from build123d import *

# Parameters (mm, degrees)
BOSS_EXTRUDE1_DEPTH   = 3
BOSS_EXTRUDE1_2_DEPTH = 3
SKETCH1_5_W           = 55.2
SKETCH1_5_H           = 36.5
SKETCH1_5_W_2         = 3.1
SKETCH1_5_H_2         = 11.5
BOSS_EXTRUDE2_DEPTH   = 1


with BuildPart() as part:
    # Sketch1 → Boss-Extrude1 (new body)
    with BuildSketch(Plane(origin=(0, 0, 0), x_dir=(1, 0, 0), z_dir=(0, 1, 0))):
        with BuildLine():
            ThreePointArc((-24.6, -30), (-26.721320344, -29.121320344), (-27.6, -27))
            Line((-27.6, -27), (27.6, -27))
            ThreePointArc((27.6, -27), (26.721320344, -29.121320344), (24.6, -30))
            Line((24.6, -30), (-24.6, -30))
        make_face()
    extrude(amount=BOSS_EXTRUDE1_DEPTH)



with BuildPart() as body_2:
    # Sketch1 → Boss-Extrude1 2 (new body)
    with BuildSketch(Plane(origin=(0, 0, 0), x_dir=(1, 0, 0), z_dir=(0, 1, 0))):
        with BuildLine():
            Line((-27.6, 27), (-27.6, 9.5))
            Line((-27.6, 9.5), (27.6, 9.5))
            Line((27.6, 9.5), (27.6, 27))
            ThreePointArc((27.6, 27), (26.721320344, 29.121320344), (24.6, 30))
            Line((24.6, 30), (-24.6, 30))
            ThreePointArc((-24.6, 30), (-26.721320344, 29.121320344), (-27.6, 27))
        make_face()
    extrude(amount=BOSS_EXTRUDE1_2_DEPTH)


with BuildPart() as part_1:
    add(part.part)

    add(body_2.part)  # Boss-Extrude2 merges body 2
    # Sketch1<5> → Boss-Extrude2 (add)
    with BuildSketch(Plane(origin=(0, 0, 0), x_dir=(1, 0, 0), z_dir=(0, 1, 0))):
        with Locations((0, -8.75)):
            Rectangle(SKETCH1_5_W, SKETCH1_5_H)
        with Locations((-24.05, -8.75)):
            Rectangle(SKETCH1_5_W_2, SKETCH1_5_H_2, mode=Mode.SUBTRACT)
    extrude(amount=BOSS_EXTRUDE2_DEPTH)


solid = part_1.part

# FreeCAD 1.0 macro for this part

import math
import FreeCAD as App
import Part
import Sketcher
Q = App.Units.Quantity

doc = App.newDocument("Part")
body = doc.addObject("PartDesign::Body", "Body")

# Sketch on XZ plane
sketch1 = body.newObject("Sketcher::SketchObject", "Sketch")
sketch1.AttachmentSupport = (doc.getObject("XZ_Plane"), [""])
sketch1.MapMode = "FlatFace"
sketch1.addGeometry([
    Part.ArcOfCircle(Part.Circle(App.Vector(-24.6, 27, 0), App.Vector(0, 0, 1), 3), math.radians(90), math.radians(180)),
    Part.LineSegment(App.Vector(-24.6, 30, 0), App.Vector(24.6, 30, 0)),
    Part.ArcOfCircle(Part.Circle(App.Vector(24.6, 27, 0), App.Vector(0, 0, 1), 3), math.radians(0), math.radians(90)),
    Part.LineSegment(App.Vector(27.6, 27, 0), App.Vector(-27.6, 27, 0)),
], False)
sketch1.addConstraint([
    Sketcher.Constraint("Tangent", 0, 1, 1, 1),
    Sketcher.Constraint("Tangent", 1, 2, 2, 2),
    Sketcher.Constraint("Coincident", 2, 1, 3, 1),
    Sketcher.Constraint("Coincident", 3, 2, 0, 2),
    Sketcher.Constraint("Horizontal", 1),
    Sketcher.Constraint("Horizontal", 3),
    Sketcher.Constraint("Equal", 0, 2),
    Sketcher.Constraint("Horizontal", 0, 3, 2, 1),
    Sketcher.Constraint("Radius", 0, Q("3 mm")),
    Sketcher.Constraint("DistanceX", 1, 1, 1, 2, Q("49.2 mm")),
    Sketcher.Constraint("DistanceY", -1, 1, 0, 3, Q("27 mm")),
    Sketcher.Constraint("DistanceX", 0, 3, -1, 1, Q("24.6 mm")),
])
pad1 = body.newObject("PartDesign::Pad", "Pad")
pad1.Profile = sketch1
pad1.Length = 3
pad1.Reversed = True
body2 = doc.addObject("PartDesign::Body", "Body001")

# Sketch on XZ plane
sketch2 = body2.newObject("Sketcher::SketchObject", "Sketch001")
sketch2.AttachmentSupport = (doc.getObject("XZ_Plane001"), [""])
sketch2.MapMode = "FlatFace"
sketch2.addGeometry([
    Part.LineSegment(App.Vector(-27.6, -27, 0), App.Vector(-27.6, -9.5, 0)),  # 0
    Part.LineSegment(App.Vector(-27.6, -9.5, 0), App.Vector(27.6, -9.5, 0)),  # 1
    Part.LineSegment(App.Vector(27.6, -9.5, 0), App.Vector(27.6, -27, 0)),  # 2
    Part.ArcOfCircle(Part.Circle(App.Vector(24.6, -27, 0), App.Vector(0, 0, 1), 3), math.radians(-90), math.radians(0)),  # 3
    Part.LineSegment(App.Vector(24.6, -30, 0), App.Vector(-24.6, -30, 0)),  # 4
    Part.ArcOfCircle(Part.Circle(App.Vector(-24.6, -27, 0), App.Vector(0, 0, 1), 3), math.radians(180), math.radians(270)),  # 5
], False)
sketch2.addConstraint([
    Sketcher.Constraint("Coincident", 0, 2, 1, 1),
    Sketcher.Constraint("Coincident", 1, 2, 2, 1),
    Sketcher.Constraint("Tangent", 2, 2, 3, 2),
    Sketcher.Constraint("Tangent", 3, 1, 4, 1),
    Sketcher.Constraint("Tangent", 4, 2, 5, 2),
    Sketcher.Constraint("Tangent", 5, 1, 0, 1),
    Sketcher.Constraint("Vertical", 0),
    Sketcher.Constraint("Horizontal", 1),
    Sketcher.Constraint("Vertical", 2),
    Sketcher.Constraint("Horizontal", 4),
    Sketcher.Constraint("Equal", 3, 5),
    Sketcher.Constraint("Radius", 3, Q("3 mm")),
    Sketcher.Constraint("DistanceX", 1, 1, 1, 2, Q("55.2 mm")),
    Sketcher.Constraint("DistanceY", 0, 1, 0, 2, Q("17.5 mm")),
    Sketcher.Constraint("DistanceY", 3, 3, -1, 1, Q("27 mm")),
    Sketcher.Constraint("DistanceX", -1, 1, 3, 3, Q("24.6 mm")),
])
pad2 = body2.newObject("PartDesign::Pad", "Pad001")
pad2.Profile = sketch2
pad2.Length = 3
pad2.Reversed = True
body.AllowCompound = True
doc.recompute()

boolean = body.newObject("PartDesign::Boolean", "Boolean")
boolean.Type = "Fuse"
boolean.addObjects([body2])

# Sketch on XZ plane
sketch3 = body.newObject("Sketcher::SketchObject", "Sketch002")
sketch3.AttachmentSupport = (doc.getObject("XZ_Plane"), [""])
sketch3.MapMode = "FlatFace"
sketch3.addGeometry([
    Part.LineSegment(App.Vector(-27.6, -9.5, 0), App.Vector(-27.6, 27, 0)),  # 0
    Part.LineSegment(App.Vector(-27.6, 27, 0), App.Vector(27.6, 27, 0)),  # 1
    Part.LineSegment(App.Vector(27.6, 27, 0), App.Vector(27.6, -9.5, 0)),  # 2
    Part.LineSegment(App.Vector(27.6, -9.5, 0), App.Vector(-27.6, -9.5, 0)),  # 3
    Part.LineSegment(App.Vector(-22.5, 14.5, 0), App.Vector(-25.6, 14.5, 0)),  # 4
    Part.LineSegment(App.Vector(-25.6, 14.5, 0), App.Vector(-25.6, 3, 0)),  # 5
    Part.LineSegment(App.Vector(-25.6, 3, 0), App.Vector(-22.5, 3, 0)),  # 6
    Part.LineSegment(App.Vector(-22.5, 3, 0), App.Vector(-22.5, 14.5, 0)),  # 7
], False)
sketch3.addConstraint([
    Sketcher.Constraint("Coincident", 0, 2, 1, 1),
    Sketcher.Constraint("Coincident", 1, 2, 2, 1),
    Sketcher.Constraint("Coincident", 2, 2, 3, 1),
    Sketcher.Constraint("Coincident", 3, 2, 0, 1),
    Sketcher.Constraint("Coincident", 4, 2, 5, 1),
    Sketcher.Constraint("Coincident", 5, 2, 6, 1),
    Sketcher.Constraint("Coincident", 6, 2, 7, 1),
    Sketcher.Constraint("Coincident", 7, 2, 4, 1),
    Sketcher.Constraint("Vertical", 0),
    Sketcher.Constraint("Horizontal", 1),
    Sketcher.Constraint("Vertical", 2),
    Sketcher.Constraint("Horizontal", 3),
    Sketcher.Constraint("Horizontal", 4),
    Sketcher.Constraint("Vertical", 5),
    Sketcher.Constraint("Horizontal", 6),
    Sketcher.Constraint("Vertical", 7),
    Sketcher.Constraint("DistanceX", 1, 1, 1, 2, Q("55.2 mm")),
    Sketcher.Constraint("DistanceX", 4, 2, 4, 1, Q("3.1 mm")),
    Sketcher.Constraint("DistanceY", 0, 1, 0, 2, Q("36.5 mm")),
    Sketcher.Constraint("DistanceY", 5, 2, 5, 1, Q("11.5 mm")),
    Sketcher.Constraint("DistanceY", -1, 1, 0, 2, Q("27 mm")),
    Sketcher.Constraint("DistanceY", -1, 1, 5, 2, Q("3 mm")),
    Sketcher.Constraint("DistanceX", 0, 2, 4, 2, Q("2 mm")),
    Sketcher.Constraint("DistanceX", 0, 2, -1, 1, Q("27.6 mm")),
])
pad3 = body.newObject("PartDesign::Pad", "Pad002")
pad3.Profile = sketch3
pad3.Length = 1
pad3.Reversed = True

doc.recompute()
